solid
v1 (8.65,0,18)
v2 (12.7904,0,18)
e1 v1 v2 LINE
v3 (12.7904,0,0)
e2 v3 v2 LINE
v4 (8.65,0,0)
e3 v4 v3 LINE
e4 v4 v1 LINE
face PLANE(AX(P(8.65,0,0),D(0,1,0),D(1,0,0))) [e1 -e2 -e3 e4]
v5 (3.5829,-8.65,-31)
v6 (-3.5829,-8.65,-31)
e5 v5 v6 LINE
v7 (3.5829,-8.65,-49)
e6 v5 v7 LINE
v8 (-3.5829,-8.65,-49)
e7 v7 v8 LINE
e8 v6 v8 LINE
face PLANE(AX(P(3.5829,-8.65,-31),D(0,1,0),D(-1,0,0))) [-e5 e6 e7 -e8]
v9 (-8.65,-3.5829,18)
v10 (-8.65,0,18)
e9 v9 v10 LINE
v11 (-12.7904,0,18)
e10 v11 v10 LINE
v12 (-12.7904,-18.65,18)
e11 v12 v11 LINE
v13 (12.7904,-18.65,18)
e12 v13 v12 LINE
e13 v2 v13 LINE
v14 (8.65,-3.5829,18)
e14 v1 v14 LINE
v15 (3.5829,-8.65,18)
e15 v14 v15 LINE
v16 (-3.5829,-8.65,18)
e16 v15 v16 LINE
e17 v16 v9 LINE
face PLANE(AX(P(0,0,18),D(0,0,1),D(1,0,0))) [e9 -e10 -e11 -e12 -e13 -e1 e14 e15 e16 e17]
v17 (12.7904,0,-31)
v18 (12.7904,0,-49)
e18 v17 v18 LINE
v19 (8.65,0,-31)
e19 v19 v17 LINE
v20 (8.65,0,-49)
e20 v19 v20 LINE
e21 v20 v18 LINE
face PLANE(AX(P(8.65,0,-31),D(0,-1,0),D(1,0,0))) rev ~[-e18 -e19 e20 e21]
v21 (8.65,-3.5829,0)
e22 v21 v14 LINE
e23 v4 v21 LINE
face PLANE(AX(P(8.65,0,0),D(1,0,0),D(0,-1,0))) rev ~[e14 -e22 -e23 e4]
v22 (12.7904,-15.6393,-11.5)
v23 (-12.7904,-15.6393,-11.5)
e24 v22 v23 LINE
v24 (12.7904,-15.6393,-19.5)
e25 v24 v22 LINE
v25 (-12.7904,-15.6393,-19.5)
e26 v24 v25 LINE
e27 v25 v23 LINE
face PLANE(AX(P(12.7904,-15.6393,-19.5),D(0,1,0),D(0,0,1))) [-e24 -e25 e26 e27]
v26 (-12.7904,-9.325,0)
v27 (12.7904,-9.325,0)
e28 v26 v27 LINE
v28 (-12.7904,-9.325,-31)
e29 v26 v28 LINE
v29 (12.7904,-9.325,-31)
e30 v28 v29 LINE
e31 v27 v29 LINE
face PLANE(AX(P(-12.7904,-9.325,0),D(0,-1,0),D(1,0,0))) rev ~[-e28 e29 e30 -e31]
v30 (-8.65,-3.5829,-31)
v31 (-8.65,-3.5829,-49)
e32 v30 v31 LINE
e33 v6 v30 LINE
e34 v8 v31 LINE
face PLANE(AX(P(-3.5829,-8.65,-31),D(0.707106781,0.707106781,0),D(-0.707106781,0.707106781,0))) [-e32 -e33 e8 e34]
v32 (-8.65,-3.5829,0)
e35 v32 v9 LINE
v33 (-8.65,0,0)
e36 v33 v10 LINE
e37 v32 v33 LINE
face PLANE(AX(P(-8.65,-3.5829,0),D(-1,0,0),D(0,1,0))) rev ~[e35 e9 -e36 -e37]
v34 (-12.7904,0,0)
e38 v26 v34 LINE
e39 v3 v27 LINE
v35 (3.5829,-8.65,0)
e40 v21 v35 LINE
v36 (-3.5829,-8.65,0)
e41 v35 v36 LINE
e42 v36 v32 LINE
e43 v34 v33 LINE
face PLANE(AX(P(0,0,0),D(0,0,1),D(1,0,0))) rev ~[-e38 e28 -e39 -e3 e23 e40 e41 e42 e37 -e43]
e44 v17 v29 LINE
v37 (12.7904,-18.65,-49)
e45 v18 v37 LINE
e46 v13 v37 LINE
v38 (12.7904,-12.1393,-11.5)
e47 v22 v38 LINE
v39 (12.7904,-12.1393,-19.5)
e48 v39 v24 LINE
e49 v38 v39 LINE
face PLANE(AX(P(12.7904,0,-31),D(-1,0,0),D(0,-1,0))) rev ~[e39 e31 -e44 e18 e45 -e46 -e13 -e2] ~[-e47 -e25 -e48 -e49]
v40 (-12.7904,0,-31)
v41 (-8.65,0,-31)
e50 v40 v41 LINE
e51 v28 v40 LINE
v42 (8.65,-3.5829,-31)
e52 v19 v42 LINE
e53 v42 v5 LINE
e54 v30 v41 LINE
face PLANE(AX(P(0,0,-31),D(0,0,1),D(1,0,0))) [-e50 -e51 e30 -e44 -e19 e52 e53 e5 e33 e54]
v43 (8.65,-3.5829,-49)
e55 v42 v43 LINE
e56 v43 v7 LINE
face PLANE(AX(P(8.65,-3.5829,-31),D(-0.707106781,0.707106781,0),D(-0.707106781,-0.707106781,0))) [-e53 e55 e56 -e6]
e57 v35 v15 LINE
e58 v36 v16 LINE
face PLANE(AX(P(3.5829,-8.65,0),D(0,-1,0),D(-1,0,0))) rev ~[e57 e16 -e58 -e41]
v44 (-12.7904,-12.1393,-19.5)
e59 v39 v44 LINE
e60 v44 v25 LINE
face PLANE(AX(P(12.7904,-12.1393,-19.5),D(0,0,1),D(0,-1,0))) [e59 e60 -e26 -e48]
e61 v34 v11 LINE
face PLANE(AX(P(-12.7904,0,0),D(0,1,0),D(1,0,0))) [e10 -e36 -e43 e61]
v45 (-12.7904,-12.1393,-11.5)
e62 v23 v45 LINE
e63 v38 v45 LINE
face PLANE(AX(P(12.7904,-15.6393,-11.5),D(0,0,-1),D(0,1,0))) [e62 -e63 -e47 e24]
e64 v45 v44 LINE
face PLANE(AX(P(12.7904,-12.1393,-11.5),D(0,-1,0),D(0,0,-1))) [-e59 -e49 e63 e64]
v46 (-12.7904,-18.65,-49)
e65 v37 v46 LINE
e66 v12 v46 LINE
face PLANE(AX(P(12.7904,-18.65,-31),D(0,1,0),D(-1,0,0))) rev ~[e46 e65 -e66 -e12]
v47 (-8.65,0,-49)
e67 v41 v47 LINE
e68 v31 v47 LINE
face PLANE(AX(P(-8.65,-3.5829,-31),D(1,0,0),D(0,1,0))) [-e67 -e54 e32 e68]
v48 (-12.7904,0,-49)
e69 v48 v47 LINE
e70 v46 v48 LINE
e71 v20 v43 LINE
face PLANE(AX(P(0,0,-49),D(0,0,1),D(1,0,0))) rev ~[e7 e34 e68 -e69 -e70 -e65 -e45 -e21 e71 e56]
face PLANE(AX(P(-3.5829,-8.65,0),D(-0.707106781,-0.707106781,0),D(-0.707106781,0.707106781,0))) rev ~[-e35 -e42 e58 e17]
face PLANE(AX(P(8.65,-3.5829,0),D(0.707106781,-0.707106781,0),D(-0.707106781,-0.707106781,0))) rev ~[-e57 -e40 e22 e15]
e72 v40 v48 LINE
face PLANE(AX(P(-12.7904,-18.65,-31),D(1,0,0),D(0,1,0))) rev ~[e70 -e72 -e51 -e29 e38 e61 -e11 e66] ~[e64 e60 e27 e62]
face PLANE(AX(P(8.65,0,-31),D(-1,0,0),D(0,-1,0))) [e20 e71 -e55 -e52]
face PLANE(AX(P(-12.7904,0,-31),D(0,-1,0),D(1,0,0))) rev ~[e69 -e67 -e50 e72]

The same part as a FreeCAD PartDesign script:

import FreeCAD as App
import Part
import Sketcher
from FreeCAD import Vector


def add_polygon(sketch, points):
    """Adds a closed chain of lines whose ends are joined by coincident constraints."""
    first, n = sketch.GeometryCount, len(points)
    for a, b in zip(points, points[1:] + points[:1]):
        sketch.addGeometry(Part.LineSegment(App.Vector(*a, 0), App.Vector(*b, 0)), False)
    for i in range(n):
        sketch.addConstraint(Sketcher.Constraint("Coincident", first + i, 2, first + (i + 1) % n, 1))

doc = App.newDocument("Part")
body = doc.addObject("PartDesign::Body", "Body")

sketch1 = doc.addObject("Sketcher::SketchObject", "Sketch")
body.addObject(sketch1)
sketch1.AttachmentSupport = (doc.XY_Plane, [""])
sketch1.MapMode = "FlatFace"
add_polygon(sketch1, [(12.8, 0), (8.7, 0), (8.7, -3.6), (3.6, -8.7), (-3.6, -8.7), (-8.7, -3.6), (-8.7, 0), (-12.8, 0), (-12.8, -18.6), (12.8, -18.6)])
sketch1.addConstraint(Sketcher.Constraint("Horizontal", 0))
sketch1.addConstraint(Sketcher.Constraint("Vertical", 1))
sketch1.addConstraint(Sketcher.Constraint("Horizontal", 3))
sketch1.addConstraint(Sketcher.Constraint("Vertical", 5))
sketch1.addConstraint(Sketcher.Constraint("Horizontal", 6))
sketch1.addConstraint(Sketcher.Constraint("Vertical", 7))
sketch1.addConstraint(Sketcher.Constraint("Horizontal", 8))
sketch1.addConstraint(Sketcher.Constraint("Vertical", 9))
sketch1.addConstraint(Sketcher.Constraint("Symmetric", 0, 2, 5, 2, -1, 1))
sketch1.addConstraint(Sketcher.Constraint("Symmetric", 6, 2, 9, 2, -2))
sketch1.addConstraint(Sketcher.Constraint("Perpendicular", 2, 4))
sketch1.addConstraint(Sketcher.Constraint("Horizontal", 1, 2, 4, 2))
sketch1.addConstraint(Sketcher.Constraint("Equal", 2, 4))
sketch1.addConstraint(Sketcher.Constraint("DistanceY", 7, 2, 3, 2, 10.0))
sketch1.addConstraint(Sketcher.Constraint("DistanceX", 4, 2, 1, 2, 17.3))
sketch1.addConstraint(Sketcher.Constraint("DistanceY", 7, 2, 7, 1, 18.65))
sketch1.addConstraint(Sketcher.Constraint("DistanceY", 1, 2, 1, 1, 3.583))
sketch1.addConstraint(Sketcher.Constraint("DistanceX", 0, 2, 0, 1, 4.1404))
pad1 = doc.addObject("PartDesign::Pad", "Pad")
body.addObject(pad1)
pad1.Profile = sketch1
pad1.Length = 18

sketch2 = doc.addObject("Sketcher::SketchObject", "Sketch001")
body.addObject(sketch2)
sketch2.AttachmentSupport = (doc.XY_Plane, [""])
sketch2.MapMode = "FlatFace"
add_polygon(sketch2, [(13, -9), (13, -19), (-13, -19), (-13, -9)])
sketch2.addConstraint(Sketcher.Constraint("Vertical", 0))
sketch2.addConstraint(Sketcher.Constraint("Horizontal", 1))
sketch2.addConstraint(Sketcher.Constraint("Vertical", 2))
sketch2.addConstraint(Sketcher.Constraint("Horizontal", 3))
sketch2.addConstraint(Sketcher.Constraint("DistanceY", 0, 2, 0, 1, 9.325))
sketch2.addConstraint(Sketcher.Constraint("DistanceY", 0, 2, -1, 1, 18.65))
sketch2.addConstraint(Sketcher.Constraint("DistanceX", 1, 2, 1, 1, 25.5808))
sketch2.addConstraint(Sketcher.Constraint("DistanceX", -1, 1, 0, 2, 12.7904))
pad2 = doc.addObject("PartDesign::Pad", "Pad001")
body.addObject(pad2)
pad2.Profile = sketch2
pad2.Length = 31
pad2.Reversed = True

sketch3 = doc.addObject("Sketcher::SketchObject", "Sketch002")
body.addObject(sketch3)
sketch3.AttachmentSupport = (doc.XY_Plane, [""])
sketch3.MapMode = "FlatFace"
sketch3.AttachmentOffset = App.Placement(Vector(0, 0, -31), App.Rotation())
add_polygon(sketch3, [(12.8, 0), (8.7, 0), (8.7, -3.6), (3.6, -8.7), (-3.6, -8.7), (-8.7, -3.6), (-8.7, 0), (-12.8, 0), (-12.8, -18.6), (12.8, -18.6)])
sketch3.addConstraint(Sketcher.Constraint("Horizontal", 0))
sketch3.addConstraint(Sketcher.Constraint("Vertical", 1))
sketch3.addConstraint(Sketcher.Constraint("Horizontal", 3))
sketch3.addConstraint(Sketcher.Constraint("Vertical", 5))
sketch3.addConstraint(Sketcher.Constraint("Horizontal", 6))
sketch3.addConstraint(Sketcher.Constraint("Vertical", 7))
sketch3.addConstraint(Sketcher.Constraint("Horizontal", 8))
sketch3.addConstraint(Sketcher.Constraint("Vertical", 9))
sketch3.addConstraint(Sketcher.Constraint("Symmetric", 0, 2, 5, 2, -1, 1))
sketch3.addConstraint(Sketcher.Constraint("Symmetric", 6, 2, 9, 2, -2))
sketch3.addConstraint(Sketcher.Constraint("Perpendicular", 2, 4))
sketch3.addConstraint(Sketcher.Constraint("Horizontal", 1, 2, 4, 2))
sketch3.addConstraint(Sketcher.Constraint("Equal", 2, 4))
sketch3.addConstraint(Sketcher.Constraint("DistanceY", 7, 2, 3, 2, 10.0))
sketch3.addConstraint(Sketcher.Constraint("DistanceX", 4, 2, 1, 2, 17.3))
sketch3.addConstraint(Sketcher.Constraint("DistanceY", 7, 2, 7, 1, 18.65))
sketch3.addConstraint(Sketcher.Constraint("DistanceY", 1, 2, 1, 1, 3.583))
sketch3.addConstraint(Sketcher.Constraint("DistanceX", 0, 2, 0, 1, 4.1404))
pad3 = doc.addObject("PartDesign::Pad", "Pad002")
body.addObject(pad3)
pad3.Profile = sketch3
pad3.Length = 18
pad3.Reversed = True

sketch4 = doc.addObject("Sketcher::SketchObject", "Sketch003")
body.addObject(sketch4)
sketch4.AttachmentSupport = (doc.YZ_Plane, [""])
sketch4.MapMode = "FlatFace"
sketch4.AttachmentOffset = App.Placement(Vector(0, 0, 12.7904), App.Rotation())
add_polygon(sketch4, [(-12.1, -19.5), (-12.1, -11.5), (-15.6, -11.5), (-15.6, -19.5)])
sketch4.addConstraint(Sketcher.Constraint("Vertical", 0))
sketch4.addConstraint(Sketcher.Constraint("Horizontal", 1))
sketch4.addConstraint(Sketcher.Constraint("Vertical", 2))
sketch4.addConstraint(Sketcher.Constraint("Horizontal", 3))
sketch4.addConstraint(Sketcher.Constraint("DistanceY", 0, 1, 0, 2, 8.0))
sketch4.addConstraint(Sketcher.Constraint("DistanceX", 1, 2, 1, 1, 3.5))
sketch4.addConstraint(Sketcher.Constraint("DistanceY", 0, 2, -1, 1, 11.5))
sketch4.addConstraint(Sketcher.Constraint("DistanceX", 0, 2, -1, 1, 12.1393))
pocket1 = doc.addObject("PartDesign::Pocket", "Pocket")
body.addObject(pocket1)
pocket1.Profile = sketch4
pocket1.Type = "ThroughAll"

doc.recompute()
